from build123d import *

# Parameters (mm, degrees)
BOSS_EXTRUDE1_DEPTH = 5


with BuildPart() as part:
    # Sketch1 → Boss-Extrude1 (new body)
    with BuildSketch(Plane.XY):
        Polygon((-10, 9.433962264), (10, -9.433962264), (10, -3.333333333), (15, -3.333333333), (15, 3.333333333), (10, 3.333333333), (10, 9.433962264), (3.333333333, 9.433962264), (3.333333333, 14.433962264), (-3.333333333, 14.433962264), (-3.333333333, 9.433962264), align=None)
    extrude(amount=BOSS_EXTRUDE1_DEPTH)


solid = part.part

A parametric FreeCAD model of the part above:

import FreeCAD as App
import Part
import Sketcher
from FreeCAD import Vector
Q = App.Units.Quantity

doc = App.newDocument("Part")
body = doc.addObject("PartDesign::Body", "Body")

# Sketch on XY plane
sketch1 = body.newObject("Sketcher::SketchObject", "Sketch")
sketch1.AttachmentSupport = (doc.getObject("XY_Plane"), [""])
sketch1.MapMode = "FlatFace"
sketch1.addGeometry([
    Part.LineSegment(Vector(-10, 9, 0), Vector(10, -9, 0)),  # 0
    Part.LineSegment(Vector(10, -9, 0), Vector(10, -3, 0)),  # 1
    Part.LineSegment(Vector(10, -3, 0), Vector(15, -3, 0)),  # 2
    Part.LineSegment(Vector(15, -3, 0), Vector(15, 3, 0)),  # 3
    Part.LineSegment(Vector(15, 3, 0), Vector(10, 3, 0)),  # 4
    Part.LineSegment(Vector(10, 3, 0), Vector(10, 9, 0)),  # 5
    Part.LineSegment(Vector(10, 9, 0), Vector(3, 9, 0)),  # 6
    Part.LineSegment(Vector(3, 9, 0), Vector(3, 14, 0)),  # 7
    Part.LineSegment(Vector(3, 14, 0), Vector(-3, 14, 0)),  # 8
    Part.LineSegment(Vector(-3, 14, 0), Vector(-3, 9, 0)),  # 9
    Part.LineSegment(Vector(-3, 9, 0), Vector(-10, 9, 0)),  # 10
], False)
sketch1.addConstraint([
    Sketcher.Constraint("Coincident", 0, 2, 1, 1),
    Sketcher.Constraint("Coincident", 1, 2, 2, 1),
    Sketcher.Constraint("Coincident", 2, 2, 3, 1),
    Sketcher.Constraint("Coincident", 3, 2, 4, 1),
    Sketcher.Constraint("Coincident", 4, 2, 5, 1),
    Sketcher.Constraint("Coincident", 5, 2, 6, 1),
    Sketcher.Constraint("Coincident", 6, 2, 7, 1),
    Sketcher.Constraint("Coincident", 7, 2, 8, 1),
    Sketcher.Constraint("Coincident", 8, 2, 9, 1),
    Sketcher.Constraint("Coincident", 9, 2, 10, 1),
    Sketcher.Constraint("Coincident", 10, 2, 0, 1),
    Sketcher.Constraint("Vertical", 1),
    Sketcher.Constraint("Horizontal", 2),
    Sketcher.Constraint("Vertical", 3),
    Sketcher.Constraint("Horizontal", 4),
    Sketcher.Constraint("Vertical", 5),
    Sketcher.Constraint("Horizontal", 6),
    Sketcher.Constraint("Vertical", 7),
    Sketcher.Constraint("Horizontal", 8),
    Sketcher.Constraint("Vertical", 9),
    Sketcher.Constraint("Horizontal", 10),
    Sketcher.Constraint("Symmetric", 0, 2, 10, 2, -1, 1),
    Sketcher.Constraint("Symmetric", 6, 2, 9, 2, -2),
    Sketcher.Constraint("Symmetric", 1, 2, 4, 2, -1),
    Sketcher.Constraint("Equal", 6, 8),
    Sketcher.Constraint("Equal", 10, 3),
    Sketcher.Constraint("Equal", 4, 7),
    Sketcher.Constraint("DistanceX", 2, 1, 2, 2, Q("5 mm")),
    Sketcher.Constraint("DistanceX", -1, 1, 0, 2, Q("10 mm")),
    Sketcher.Constraint("DistanceY", 1, 1, 1, 2, Q("6.100629 mm")),
])
pad1 = body.newObject("PartDesign::Pad", "Pad")
pad1.Profile = sketch1
pad1.Length = 5

doc.recompute()
